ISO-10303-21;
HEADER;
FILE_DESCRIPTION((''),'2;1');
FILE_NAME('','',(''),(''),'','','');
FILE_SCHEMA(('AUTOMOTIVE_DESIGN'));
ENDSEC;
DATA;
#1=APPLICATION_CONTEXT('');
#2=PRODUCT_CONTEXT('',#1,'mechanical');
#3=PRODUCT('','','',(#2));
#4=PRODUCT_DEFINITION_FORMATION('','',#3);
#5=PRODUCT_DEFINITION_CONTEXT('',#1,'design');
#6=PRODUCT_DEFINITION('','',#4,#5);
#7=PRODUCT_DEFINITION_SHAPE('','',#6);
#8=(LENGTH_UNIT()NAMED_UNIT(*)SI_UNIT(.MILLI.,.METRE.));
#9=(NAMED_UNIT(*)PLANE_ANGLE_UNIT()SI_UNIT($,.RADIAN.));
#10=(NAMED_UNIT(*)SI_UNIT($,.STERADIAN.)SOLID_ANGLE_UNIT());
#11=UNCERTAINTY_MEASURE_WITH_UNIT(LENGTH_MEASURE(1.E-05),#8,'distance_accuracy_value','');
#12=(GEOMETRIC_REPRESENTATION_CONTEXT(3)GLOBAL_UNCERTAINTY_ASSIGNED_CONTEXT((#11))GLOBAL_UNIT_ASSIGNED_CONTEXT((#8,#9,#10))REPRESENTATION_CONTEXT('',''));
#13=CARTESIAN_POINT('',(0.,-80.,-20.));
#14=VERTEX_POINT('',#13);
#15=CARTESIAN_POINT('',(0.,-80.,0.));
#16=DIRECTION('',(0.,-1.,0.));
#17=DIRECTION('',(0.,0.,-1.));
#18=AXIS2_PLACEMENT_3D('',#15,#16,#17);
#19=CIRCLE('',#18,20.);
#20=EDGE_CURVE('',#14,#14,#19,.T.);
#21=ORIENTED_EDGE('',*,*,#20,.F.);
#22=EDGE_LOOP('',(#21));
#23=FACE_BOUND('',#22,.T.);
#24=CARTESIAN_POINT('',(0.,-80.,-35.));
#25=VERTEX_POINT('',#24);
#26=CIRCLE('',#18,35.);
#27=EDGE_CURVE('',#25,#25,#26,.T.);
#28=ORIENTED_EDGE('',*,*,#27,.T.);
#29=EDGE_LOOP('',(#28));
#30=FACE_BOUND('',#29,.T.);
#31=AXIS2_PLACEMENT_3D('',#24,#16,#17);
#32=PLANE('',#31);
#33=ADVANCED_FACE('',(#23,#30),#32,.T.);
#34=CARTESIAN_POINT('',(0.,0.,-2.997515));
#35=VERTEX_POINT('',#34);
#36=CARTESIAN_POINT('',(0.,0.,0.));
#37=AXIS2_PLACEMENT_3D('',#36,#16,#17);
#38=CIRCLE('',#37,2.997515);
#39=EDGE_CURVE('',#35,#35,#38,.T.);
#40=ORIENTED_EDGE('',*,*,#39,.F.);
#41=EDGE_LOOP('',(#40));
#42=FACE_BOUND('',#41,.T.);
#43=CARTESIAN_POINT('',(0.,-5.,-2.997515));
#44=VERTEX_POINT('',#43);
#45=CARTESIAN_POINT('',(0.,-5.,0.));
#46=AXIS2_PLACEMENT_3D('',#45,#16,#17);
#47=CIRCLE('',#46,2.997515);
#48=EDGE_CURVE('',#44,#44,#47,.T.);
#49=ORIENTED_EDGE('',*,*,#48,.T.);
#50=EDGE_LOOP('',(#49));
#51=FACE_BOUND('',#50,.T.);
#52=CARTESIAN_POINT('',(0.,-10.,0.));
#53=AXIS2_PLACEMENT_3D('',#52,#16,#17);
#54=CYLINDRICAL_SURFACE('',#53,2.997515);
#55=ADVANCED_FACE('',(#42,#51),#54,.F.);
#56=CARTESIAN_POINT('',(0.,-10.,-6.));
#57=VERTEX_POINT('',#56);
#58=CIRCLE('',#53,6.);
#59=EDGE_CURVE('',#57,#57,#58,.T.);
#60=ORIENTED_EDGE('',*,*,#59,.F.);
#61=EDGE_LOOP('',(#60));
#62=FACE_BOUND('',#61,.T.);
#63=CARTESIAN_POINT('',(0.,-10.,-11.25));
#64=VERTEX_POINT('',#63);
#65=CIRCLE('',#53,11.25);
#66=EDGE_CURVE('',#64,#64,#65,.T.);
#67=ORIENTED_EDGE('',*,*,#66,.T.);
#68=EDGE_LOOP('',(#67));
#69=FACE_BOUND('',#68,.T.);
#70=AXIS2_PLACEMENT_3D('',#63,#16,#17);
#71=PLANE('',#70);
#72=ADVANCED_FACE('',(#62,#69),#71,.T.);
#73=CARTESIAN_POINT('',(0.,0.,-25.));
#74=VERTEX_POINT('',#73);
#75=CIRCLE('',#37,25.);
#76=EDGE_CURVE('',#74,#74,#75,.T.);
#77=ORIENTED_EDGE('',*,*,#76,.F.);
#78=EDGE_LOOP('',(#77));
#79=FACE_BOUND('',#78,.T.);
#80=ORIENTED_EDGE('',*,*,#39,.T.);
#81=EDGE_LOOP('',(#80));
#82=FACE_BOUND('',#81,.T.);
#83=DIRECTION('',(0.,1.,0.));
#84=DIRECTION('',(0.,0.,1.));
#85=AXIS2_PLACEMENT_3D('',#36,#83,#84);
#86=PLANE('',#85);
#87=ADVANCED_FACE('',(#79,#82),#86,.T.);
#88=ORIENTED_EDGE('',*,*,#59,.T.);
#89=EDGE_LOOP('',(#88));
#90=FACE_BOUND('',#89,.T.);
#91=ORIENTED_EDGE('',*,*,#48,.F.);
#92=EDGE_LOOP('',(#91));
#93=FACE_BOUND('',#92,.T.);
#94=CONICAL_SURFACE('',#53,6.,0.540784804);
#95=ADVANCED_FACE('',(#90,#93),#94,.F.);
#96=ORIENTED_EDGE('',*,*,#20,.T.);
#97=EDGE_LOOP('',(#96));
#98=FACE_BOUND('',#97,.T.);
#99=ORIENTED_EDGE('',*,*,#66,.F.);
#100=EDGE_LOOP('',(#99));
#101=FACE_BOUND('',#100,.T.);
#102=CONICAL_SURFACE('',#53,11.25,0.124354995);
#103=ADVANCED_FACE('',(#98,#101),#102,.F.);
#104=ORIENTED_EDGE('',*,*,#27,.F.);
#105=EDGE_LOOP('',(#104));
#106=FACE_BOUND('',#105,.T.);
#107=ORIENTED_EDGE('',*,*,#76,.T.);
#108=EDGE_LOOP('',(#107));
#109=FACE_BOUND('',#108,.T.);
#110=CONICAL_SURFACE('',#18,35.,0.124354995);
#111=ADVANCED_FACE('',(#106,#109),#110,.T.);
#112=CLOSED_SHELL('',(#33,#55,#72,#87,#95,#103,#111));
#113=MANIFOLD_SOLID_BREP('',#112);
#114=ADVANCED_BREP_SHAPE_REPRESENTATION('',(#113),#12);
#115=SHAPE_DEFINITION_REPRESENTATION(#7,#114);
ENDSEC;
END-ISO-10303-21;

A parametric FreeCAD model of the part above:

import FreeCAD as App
import Part
import Sketcher

V = App.Vector

doc = App.newDocument("Part")
body = doc.addObject("PartDesign::Body", "Body")

# Sketch on YZ plane
sketch1 = body.newObject("Sketcher::SketchObject", "Sketch")
sketch1.AttachmentSupport = (doc.getObject("YZ_Plane"), [""])
sketch1.MapMode = "FlatFace"
sketch1.addGeometry([
    Part.LineSegment(V(0, -25, 0), V(0, 0, 0)),  # 0
    Part.LineSegment(V(0, 0, 0), V(-10, 0, 0)),  # 1
    Part.LineSegment(V(-10, 0, 0), V(-10, -11, 0)),  # 2
    Part.LineSegment(V(-10, -11, 0), V(-80, -20, 0)),  # 3
    Part.LineSegment(V(-80, -20, 0), V(-80, -35, 0)),  # 4
    Part.LineSegment(V(-80, -35, 0), V(0, -25, 0)),  # 5
], False)
sketch1.addConstraint([
    Sketcher.Constraint("Coincident", 0, 2, 1, 1),
    Sketcher.Constraint("Coincident", 1, 2, 2, 1),
    Sketcher.Constraint("Coincident", 2, 2, 3, 1),
    Sketcher.Constraint("Coincident", 3, 2, 4, 1),
    Sketcher.Constraint("Coincident", 4, 2, 5, 1),
    Sketcher.Constraint("Coincident", 5, 2, 0, 1),
    Sketcher.Constraint("Vertical", 0),
    Sketcher.Constraint("Horizontal", 1),
    Sketcher.Constraint("Vertical", 2),
    Sketcher.Constraint("Vertical", 4),
    Sketcher.Constraint("Coincident", 0, 2, -1, 1),
    Sketcher.Constraint("Parallel", 3, 5),
    Sketcher.Constraint("DistanceX", 1, 2, 1, 1, 10.0),
    Sketcher.Constraint("DistanceY", 0, 1, 0, 2, 25.0),
    Sketcher.Constraint("DistanceY", 4, 2, 4, 1, 15.0),
    Sketcher.Constraint("DistanceX", 3, 2, -1, 1, 80.0),
    Sketcher.Constraint("DistanceY", 3, 2, -1, 1, 20.0),
])
revolution = body.newObject("PartDesign::Revolution", "Revolution")
revolution.Profile = sketch1
revolution.ReferenceAxis = (sketch1, ["H_Axis"])
revolution.Angle = 360

# Sketch on YZ plane
sketch2 = body.newObject("Sketcher::SketchObject", "Sketch001")
sketch2.AttachmentSupport = (doc.getObject("YZ_Plane"), [""])
sketch2.MapMode = "FlatFace"
sketch2.addGeometry([
    Part.LineSegment(V(0, 0, 0), V(-10, 0, 0)),  # 0
    Part.LineSegment(V(-10, 0, 0), V(-10, -6, 0)),  # 1
    Part.LineSegment(V(-10, -6, 0), V(-5, -3, 0)),  # 2
    Part.LineSegment(V(-5, -3, 0), V(0, -3, 0)),  # 3
    Part.LineSegment(V(0, -3, 0), V(0, 0, 0)),  # 4
], False)
sketch2.addConstraint([
    Sketcher.Constraint("Coincident", 0, 2, 1, 1),
    Sketcher.Constraint("Coincident", 1, 2, 2, 1),
    Sketcher.Constraint("Coincident", 2, 2, 3, 1),
    Sketcher.Constraint("Coincident", 3, 2, 4, 1),
    Sketcher.Constraint("Coincident", 4, 2, 0, 1),
    Sketcher.Constraint("Horizontal", 0),
    Sketcher.Constraint("Vertical", 1),
    Sketcher.Constraint("Horizontal", 3),
    Sketcher.Constraint("Vertical", 4),
    Sketcher.Constraint("Coincident", 4, 2, -1, 1),
    Sketcher.Constraint("DistanceX", 0, 2, 0, 1, 10.0),
    Sketcher.Constraint("DistanceX", 3, 1, 3, 2, 5.0),
    Sketcher.Constraint("DistanceY", 1, 2, 1, 1, 6.0),
    Sketcher.Constraint("Distance", 2, 5.832231),
])
groove = body.newObject("PartDesign::Groove", "Groove")
groove.Profile = sketch2
groove.ReferenceAxis = (sketch2, ["H_Axis"])
groove.Angle = 360

doc.recompute()
